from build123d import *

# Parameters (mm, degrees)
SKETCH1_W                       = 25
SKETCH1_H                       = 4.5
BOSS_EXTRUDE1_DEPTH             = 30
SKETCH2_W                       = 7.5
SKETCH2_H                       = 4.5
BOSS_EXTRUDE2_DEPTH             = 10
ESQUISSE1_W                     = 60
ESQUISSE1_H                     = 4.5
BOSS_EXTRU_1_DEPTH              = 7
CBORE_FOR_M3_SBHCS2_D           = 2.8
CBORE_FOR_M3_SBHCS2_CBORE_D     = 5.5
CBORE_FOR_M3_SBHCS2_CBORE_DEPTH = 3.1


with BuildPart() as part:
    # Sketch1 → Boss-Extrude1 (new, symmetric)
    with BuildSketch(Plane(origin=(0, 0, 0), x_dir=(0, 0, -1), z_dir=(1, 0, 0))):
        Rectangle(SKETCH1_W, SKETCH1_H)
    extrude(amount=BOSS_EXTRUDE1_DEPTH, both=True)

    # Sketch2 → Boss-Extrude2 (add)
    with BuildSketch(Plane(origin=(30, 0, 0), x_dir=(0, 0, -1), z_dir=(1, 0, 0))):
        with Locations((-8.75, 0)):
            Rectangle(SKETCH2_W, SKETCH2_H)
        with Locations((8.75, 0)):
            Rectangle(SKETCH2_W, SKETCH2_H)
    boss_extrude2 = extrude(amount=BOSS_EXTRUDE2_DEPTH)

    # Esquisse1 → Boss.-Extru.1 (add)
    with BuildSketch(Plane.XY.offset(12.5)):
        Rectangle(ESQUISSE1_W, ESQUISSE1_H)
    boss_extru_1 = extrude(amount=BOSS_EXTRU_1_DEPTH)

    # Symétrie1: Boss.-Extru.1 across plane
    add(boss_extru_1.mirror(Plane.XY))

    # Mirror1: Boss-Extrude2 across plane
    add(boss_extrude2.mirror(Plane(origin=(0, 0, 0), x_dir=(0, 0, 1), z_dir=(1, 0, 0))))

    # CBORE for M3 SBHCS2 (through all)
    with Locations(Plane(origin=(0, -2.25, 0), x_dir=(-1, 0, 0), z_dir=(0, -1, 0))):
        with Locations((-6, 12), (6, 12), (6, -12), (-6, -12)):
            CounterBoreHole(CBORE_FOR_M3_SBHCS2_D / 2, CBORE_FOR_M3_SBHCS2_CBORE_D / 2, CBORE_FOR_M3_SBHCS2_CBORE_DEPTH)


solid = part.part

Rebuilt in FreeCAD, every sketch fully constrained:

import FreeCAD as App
import Part
import Sketcher
from FreeCAD import Vector
Q = App.Units.Quantity


def add_polygon(sketch, points):
    """Adds a closed chain of lines whose ends are joined by coincident constraints."""
    first, n = sketch.GeometryCount, len(points)
    for a, b in zip(points, points[1:] + points[:1]):
        sketch.addGeometry(Part.LineSegment(App.Vector(*a, 0), App.Vector(*b, 0)), False)
    for i in range(n):
        sketch.addConstraint(Sketcher.Constraint("Coincident", first + i, 2, first + (i + 1) % n, 1))

doc = App.newDocument("Part")
body = doc.addObject("PartDesign::Body", "Body")

# Sketch on YZ plane
sketch1 = doc.addObject("Sketcher::SketchObject", "Sketch")
body.addObject(sketch1)
sketch1.AttachmentSupport = (doc.YZ_Plane, [""])
sketch1.MapMode = "FlatFace"
add_polygon(sketch1, [(2.2, 12.5), (-2.2, 12.5), (-2.2, -12.5), (2.2, -12.5)])  # lines 0-3
sketch1.addConstraint([
    Sketcher.Constraint("Horizontal", 0),
    Sketcher.Constraint("Vertical", 1),
    Sketcher.Constraint("Horizontal", 2),
    Sketcher.Constraint("Vertical", 3),
    Sketcher.Constraint("Symmetric", 0, 2, 2, 2, -1, 1),
    Sketcher.Constraint("DistanceY", 1, 2, 1, 1, Q("25 mm")),
    Sketcher.Constraint("DistanceX", 0, 2, 0, 1, Q("4.5 mm")),
])
pad1 = doc.addObject("PartDesign::Pad", "Pad")
body.addObject(pad1)
pad1.Profile = sketch1
pad1.Length = 60
pad1.Midplane = True

# Sketch on YZ plane
sketch2 = doc.addObject("Sketcher::SketchObject", "Sketch001")
body.addObject(sketch2)
sketch2.AttachmentSupport = (doc.YZ_Plane, [""])
sketch2.MapMode = "FlatFace"
sketch2.AttachmentOffset = App.Placement(Vector(0, 0, 30), App.Rotation())
add_polygon(sketch2, [(2.2, 12.5), (-2.2, 12.5), (-2.2, 5), (2.2, 5)])  # lines 0-3
add_polygon(sketch2, [(2.2, -5), (-2.2, -5), (-2.2, -12.5), (2.2, -12.5)])  # lines 4-7
sketch2.addConstraint([
    Sketcher.Constraint("Horizontal", 0),
    Sketcher.Constraint("Vertical", 1),
    Sketcher.Constraint("Horizontal", 2),
    Sketcher.Constraint("Vertical", 3),
    Sketcher.Constraint("Horizontal", 4),
    Sketcher.Constraint("Vertical", 5),
    Sketcher.Constraint("Horizontal", 6),
    Sketcher.Constraint("Vertical", 7),
    Sketcher.Constraint("Symmetric", 2, 2, 4, 2, -1, 1),
    Sketcher.Constraint("Symmetric", 0, 2, 6, 2, -1, 1),
    Sketcher.Constraint("Vertical", 1, 2, 4, 2),
    Sketcher.Constraint("DistanceX", 0, 2, 0, 1, Q("4.5 mm")),
    Sketcher.Constraint("DistanceY", 1, 2, 1, 1, Q("7.5 mm")),
    Sketcher.Constraint("DistanceY", -1, 1, 1, 2, Q("5 mm")),
])
pad2 = doc.addObject("PartDesign::Pad", "Pad001")
body.addObject(pad2)
pad2.Profile = sketch2
pad2.Length = 10

# Sketch on XY plane
sketch3 = doc.addObject("Sketcher::SketchObject", "Sketch002")
body.addObject(sketch3)
sketch3.AttachmentSupport = (doc.XY_Plane, [""])
sketch3.MapMode = "FlatFace"
sketch3.AttachmentOffset = App.Placement(Vector(0, 0, 12.5), App.Rotation())
add_polygon(sketch3, [(-30, 2.2), (-30, -2.2), (30, -2.2), (30, 2.2)])  # lines 0-3
sketch3.addConstraint([
    Sketcher.Constraint("Vertical", 0),
    Sketcher.Constraint("Horizontal", 1),
    Sketcher.Constraint("Vertical", 2),
    Sketcher.Constraint("Horizontal", 3),
    Sketcher.Constraint("Symmetric", 0, 2, 2, 2, -1, 1),
    Sketcher.Constraint("DistanceX", 1, 1, 1, 2, Q("60 mm")),
    Sketcher.Constraint("DistanceY", 0, 2, 0, 1, Q("4.5 mm")),
])
pad3 = doc.addObject("PartDesign::Pad", "Pad002")
body.addObject(pad3)
pad3.Profile = sketch3
pad3.Length = 7
doc.recompute()

mirrored = doc.addObject("PartDesign::Mirrored", "Mirrored")
body.addObject(mirrored)
mirrored.Originals = [pad3]
mirrored.MirrorPlane = (doc.XY_Plane, [""])
body.Tip = mirrored
doc.recompute()

mirrored2 = doc.addObject("PartDesign::Mirrored", "Mirrored001")
body.addObject(mirrored2)
mirrored2.Originals = [pad2]
mirrored2.MirrorPlane = (doc.YZ_Plane, [""])
body.Tip = mirrored2

# Sketch on XZ plane
sketch4 = doc.addObject("Sketcher::SketchObject", "Sketch003")
body.addObject(sketch4)
sketch4.AttachmentSupport = (doc.XZ_Plane, [""])
sketch4.MapMode = "FlatFace"
sketch4.AttachmentOffset = App.Placement(Vector(0, 0, 2.25), App.Rotation())
sketch4.addGeometry([
    Part.Circle(Vector(6, -12, 0), Vector(0, 0, 1), 1.4),
    Part.Circle(Vector(-6, -12, 0), Vector(0, 0, 1), 1.4),
    Part.Circle(Vector(-6, 12, 0), Vector(0, 0, 1), 1.4),
    Part.Circle(Vector(6, 12, 0), Vector(0, 0, 1), 1.4),
], False)
sketch4.addConstraint([
    Sketcher.Constraint("Equal", 0, 1),
    Sketcher.Constraint("Equal", 1, 2),
    Sketcher.Constraint("Equal", 2, 3),
    Sketcher.Constraint("Symmetric", 0, 3, 2, 3, -1, 1),
    Sketcher.Constraint("Symmetric", 1, 3, 3, 3, -1, 1),
    Sketcher.Constraint("Symmetric", 0, 3, 1, 3, -2),
    Sketcher.Constraint("Diameter", 0, Q("2.8 mm")),
    Sketcher.Constraint("DistanceX", -1, 1, 0, 3, Q("6 mm")),
    Sketcher.Constraint("DistanceY", 0, 3, -1, 1, Q("12 mm")),
])
doc.recompute()
hole = doc.addObject("PartDesign::Hole", "Hole")
body.addObject(hole)
hole.Profile = sketch4
hole.ThreadType = "None"
hole.Diameter = 2.8
hole.DepthType = "ThroughAll"
hole.HoleCutType = "Counterbore"
hole.HoleCutDiameter = 5.5
hole.HoleCutDepth = 3.1

doc.recompute()
